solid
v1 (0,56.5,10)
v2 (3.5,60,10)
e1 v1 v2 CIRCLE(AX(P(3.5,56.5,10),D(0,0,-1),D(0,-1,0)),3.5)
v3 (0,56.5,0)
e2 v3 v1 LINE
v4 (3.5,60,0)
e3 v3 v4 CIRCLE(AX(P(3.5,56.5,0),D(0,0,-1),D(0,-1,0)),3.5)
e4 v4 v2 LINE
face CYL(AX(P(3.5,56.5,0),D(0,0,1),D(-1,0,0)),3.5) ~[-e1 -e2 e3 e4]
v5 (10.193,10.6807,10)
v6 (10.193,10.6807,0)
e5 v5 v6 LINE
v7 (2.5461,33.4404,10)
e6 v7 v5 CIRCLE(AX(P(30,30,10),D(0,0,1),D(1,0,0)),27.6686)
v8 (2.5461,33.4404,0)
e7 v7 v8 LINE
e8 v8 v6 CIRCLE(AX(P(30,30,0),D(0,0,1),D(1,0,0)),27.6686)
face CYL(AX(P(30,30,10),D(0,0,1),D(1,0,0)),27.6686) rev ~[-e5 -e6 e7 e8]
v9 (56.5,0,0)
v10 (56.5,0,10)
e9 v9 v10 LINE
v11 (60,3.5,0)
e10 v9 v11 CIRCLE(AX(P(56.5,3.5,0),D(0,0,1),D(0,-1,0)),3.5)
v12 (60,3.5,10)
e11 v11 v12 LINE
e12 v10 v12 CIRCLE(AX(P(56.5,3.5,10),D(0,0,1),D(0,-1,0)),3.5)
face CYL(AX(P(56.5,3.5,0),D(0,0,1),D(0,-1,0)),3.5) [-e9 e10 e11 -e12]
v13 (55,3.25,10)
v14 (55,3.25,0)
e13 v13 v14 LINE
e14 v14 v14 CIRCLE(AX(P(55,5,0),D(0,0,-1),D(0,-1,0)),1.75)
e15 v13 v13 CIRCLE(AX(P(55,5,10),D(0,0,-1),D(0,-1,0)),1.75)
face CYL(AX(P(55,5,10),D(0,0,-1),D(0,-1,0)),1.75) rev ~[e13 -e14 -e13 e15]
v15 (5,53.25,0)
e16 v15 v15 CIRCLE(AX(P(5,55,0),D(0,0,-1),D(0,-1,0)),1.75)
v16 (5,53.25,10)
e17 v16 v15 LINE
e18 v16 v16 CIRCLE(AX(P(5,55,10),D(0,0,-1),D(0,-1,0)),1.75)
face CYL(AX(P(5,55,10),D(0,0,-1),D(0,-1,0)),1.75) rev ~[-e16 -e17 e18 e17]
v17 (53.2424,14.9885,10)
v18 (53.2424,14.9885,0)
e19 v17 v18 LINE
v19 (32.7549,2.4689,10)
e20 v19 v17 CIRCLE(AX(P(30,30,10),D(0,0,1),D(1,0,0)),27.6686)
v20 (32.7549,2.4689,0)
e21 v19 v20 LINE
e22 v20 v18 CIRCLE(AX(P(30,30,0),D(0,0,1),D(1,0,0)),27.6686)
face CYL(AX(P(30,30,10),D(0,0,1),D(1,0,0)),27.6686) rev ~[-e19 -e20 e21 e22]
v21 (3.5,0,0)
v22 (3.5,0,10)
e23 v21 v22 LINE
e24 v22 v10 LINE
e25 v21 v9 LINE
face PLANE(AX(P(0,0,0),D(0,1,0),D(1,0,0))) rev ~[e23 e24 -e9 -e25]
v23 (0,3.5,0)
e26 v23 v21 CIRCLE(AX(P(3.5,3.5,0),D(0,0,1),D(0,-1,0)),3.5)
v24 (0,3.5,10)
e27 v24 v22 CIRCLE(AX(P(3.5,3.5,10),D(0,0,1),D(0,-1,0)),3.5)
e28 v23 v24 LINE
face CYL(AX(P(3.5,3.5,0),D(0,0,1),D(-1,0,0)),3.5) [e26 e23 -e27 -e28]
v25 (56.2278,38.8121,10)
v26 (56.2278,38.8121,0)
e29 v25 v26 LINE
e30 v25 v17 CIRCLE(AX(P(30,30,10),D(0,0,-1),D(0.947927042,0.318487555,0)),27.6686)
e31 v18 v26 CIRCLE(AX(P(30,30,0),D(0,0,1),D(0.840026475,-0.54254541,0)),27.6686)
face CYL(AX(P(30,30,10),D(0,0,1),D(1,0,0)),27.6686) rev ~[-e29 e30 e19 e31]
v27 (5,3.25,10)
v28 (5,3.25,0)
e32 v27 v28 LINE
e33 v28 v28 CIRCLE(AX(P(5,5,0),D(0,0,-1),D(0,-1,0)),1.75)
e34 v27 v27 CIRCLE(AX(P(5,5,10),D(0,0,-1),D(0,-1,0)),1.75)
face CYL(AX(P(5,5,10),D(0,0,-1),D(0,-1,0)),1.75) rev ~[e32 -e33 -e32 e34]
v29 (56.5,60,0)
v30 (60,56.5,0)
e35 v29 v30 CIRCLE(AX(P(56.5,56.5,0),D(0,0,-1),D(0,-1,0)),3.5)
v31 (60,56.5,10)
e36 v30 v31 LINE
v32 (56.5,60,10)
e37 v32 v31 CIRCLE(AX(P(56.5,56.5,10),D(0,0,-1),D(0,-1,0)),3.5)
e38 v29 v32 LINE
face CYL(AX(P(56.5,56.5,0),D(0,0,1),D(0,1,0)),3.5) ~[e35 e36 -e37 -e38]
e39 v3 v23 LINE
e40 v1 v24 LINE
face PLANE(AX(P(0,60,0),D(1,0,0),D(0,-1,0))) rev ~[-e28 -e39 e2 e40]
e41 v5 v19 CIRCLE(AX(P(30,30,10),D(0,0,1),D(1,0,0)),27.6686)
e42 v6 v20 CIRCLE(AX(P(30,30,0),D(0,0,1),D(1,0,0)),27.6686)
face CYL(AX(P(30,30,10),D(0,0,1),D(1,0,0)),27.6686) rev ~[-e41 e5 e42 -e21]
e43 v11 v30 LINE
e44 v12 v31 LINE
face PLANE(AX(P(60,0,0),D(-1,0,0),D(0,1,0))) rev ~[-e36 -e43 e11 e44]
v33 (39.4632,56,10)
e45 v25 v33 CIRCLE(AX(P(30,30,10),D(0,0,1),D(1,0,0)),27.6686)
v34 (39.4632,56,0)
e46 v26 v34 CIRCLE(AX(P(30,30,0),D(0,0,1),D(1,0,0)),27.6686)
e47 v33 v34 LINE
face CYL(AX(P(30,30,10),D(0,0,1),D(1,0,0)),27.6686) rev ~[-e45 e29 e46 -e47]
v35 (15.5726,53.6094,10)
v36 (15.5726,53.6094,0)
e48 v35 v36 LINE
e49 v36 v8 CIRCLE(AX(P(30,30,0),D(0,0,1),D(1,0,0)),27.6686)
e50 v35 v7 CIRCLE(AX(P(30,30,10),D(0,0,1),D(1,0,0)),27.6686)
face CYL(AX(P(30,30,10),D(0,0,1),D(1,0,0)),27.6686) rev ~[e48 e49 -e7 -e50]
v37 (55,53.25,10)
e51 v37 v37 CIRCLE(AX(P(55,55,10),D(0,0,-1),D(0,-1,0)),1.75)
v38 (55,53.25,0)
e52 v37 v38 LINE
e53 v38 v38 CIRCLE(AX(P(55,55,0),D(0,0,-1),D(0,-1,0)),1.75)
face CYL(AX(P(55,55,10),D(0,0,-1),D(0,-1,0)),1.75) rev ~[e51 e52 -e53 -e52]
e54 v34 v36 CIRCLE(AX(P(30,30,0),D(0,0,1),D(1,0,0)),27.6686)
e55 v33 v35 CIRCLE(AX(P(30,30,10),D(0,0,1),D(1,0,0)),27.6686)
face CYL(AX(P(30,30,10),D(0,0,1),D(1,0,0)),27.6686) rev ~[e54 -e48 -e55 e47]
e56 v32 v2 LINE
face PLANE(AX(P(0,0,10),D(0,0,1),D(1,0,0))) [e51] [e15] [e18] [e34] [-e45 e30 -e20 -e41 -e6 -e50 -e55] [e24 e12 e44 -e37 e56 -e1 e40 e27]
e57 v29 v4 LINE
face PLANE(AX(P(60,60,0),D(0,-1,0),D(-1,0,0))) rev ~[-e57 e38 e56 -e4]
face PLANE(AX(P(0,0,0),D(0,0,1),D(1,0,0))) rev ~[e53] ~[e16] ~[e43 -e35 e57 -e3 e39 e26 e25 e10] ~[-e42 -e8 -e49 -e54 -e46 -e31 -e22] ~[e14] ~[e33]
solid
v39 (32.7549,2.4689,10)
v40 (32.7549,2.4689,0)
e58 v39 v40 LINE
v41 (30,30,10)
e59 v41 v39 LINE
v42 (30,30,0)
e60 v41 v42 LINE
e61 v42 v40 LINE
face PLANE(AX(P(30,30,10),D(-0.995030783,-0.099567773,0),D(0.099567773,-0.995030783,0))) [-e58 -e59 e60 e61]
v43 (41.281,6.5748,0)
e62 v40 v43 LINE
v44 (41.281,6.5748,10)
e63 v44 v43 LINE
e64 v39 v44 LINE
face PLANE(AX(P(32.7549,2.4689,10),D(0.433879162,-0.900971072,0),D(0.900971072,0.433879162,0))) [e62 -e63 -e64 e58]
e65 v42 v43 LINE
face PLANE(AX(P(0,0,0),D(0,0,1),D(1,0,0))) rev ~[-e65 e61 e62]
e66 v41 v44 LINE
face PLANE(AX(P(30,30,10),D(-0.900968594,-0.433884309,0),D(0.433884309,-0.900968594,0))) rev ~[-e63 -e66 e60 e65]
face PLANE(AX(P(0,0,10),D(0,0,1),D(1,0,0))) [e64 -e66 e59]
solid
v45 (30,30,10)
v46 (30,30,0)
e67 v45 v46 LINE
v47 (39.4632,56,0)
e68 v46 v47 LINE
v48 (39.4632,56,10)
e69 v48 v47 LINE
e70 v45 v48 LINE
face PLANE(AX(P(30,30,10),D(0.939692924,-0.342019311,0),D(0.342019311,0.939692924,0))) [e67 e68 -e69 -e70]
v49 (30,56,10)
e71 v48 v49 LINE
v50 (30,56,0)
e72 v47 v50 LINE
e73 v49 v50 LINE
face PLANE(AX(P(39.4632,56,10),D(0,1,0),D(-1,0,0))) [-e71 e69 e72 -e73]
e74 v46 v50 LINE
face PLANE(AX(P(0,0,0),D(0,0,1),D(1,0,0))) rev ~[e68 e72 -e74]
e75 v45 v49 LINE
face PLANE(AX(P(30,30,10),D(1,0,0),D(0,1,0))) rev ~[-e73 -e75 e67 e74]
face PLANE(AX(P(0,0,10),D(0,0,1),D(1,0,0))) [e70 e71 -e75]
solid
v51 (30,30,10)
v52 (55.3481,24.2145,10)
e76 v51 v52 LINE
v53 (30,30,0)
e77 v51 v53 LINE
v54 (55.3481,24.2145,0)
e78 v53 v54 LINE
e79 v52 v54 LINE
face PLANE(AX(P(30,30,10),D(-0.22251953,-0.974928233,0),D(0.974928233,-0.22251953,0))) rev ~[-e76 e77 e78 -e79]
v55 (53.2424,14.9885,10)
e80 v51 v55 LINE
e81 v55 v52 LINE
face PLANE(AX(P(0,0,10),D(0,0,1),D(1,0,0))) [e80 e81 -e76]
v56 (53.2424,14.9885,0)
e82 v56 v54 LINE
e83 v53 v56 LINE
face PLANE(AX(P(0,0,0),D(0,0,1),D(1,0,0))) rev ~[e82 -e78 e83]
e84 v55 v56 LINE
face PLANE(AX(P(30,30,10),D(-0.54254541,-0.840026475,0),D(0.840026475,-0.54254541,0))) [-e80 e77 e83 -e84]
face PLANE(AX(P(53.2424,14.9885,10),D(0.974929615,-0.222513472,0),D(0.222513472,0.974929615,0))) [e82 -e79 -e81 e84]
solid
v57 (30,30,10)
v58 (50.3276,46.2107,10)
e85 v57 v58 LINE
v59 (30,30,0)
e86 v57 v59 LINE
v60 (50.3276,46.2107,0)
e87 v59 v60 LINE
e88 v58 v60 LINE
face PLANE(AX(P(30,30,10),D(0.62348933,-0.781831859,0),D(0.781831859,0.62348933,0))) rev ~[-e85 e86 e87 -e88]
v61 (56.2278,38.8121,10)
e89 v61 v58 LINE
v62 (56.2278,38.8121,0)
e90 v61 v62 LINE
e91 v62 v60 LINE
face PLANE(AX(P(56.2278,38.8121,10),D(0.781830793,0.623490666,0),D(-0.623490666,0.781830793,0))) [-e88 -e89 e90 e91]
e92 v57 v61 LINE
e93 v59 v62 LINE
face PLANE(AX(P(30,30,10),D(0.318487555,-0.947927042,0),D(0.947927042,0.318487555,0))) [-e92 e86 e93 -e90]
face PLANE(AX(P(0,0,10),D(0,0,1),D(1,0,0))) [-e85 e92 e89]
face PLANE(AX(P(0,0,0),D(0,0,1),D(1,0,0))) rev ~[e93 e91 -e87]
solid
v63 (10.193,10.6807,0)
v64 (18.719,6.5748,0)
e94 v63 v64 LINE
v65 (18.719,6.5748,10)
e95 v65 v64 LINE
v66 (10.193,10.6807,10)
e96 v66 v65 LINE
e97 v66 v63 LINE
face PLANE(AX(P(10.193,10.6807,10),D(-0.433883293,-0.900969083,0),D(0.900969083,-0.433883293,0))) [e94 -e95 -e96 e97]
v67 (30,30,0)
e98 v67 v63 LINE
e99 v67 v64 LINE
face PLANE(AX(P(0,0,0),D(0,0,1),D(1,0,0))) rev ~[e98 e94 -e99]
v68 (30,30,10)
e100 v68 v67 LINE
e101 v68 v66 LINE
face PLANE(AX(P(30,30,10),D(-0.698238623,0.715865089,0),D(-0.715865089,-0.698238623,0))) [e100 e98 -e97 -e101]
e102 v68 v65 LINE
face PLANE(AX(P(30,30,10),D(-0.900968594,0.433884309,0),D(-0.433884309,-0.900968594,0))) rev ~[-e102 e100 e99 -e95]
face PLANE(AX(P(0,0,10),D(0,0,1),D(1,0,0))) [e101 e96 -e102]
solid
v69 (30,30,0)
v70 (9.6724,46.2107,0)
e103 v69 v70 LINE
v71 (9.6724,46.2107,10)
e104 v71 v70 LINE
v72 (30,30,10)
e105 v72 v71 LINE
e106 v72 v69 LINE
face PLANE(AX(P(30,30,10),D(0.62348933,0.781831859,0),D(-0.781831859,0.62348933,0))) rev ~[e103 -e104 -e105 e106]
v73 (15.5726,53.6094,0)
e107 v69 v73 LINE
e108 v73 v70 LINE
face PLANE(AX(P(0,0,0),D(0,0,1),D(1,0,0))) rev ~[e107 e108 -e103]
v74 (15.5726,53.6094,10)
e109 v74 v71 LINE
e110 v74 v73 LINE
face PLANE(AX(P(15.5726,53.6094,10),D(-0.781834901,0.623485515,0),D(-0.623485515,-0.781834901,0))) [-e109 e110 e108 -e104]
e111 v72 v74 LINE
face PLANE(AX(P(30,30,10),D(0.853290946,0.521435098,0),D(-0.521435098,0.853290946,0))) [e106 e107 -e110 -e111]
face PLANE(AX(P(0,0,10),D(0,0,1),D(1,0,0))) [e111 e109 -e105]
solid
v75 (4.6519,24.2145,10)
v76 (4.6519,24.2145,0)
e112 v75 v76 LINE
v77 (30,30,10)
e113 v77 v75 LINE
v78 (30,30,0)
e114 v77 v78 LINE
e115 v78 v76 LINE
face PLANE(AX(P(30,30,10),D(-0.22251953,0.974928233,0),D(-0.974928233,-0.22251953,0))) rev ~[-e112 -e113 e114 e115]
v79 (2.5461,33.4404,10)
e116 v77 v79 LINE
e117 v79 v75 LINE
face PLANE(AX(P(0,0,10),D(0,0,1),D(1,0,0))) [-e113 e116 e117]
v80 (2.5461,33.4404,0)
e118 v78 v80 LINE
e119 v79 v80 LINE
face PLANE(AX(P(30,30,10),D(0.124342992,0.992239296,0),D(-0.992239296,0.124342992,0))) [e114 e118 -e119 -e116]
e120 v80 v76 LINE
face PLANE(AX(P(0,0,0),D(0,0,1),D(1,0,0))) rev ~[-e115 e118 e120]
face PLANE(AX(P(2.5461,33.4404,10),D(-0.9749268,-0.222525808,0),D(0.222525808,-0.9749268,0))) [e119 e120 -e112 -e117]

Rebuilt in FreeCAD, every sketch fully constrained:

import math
import FreeCAD as App
import Part
import Sketcher
Q = App.Units.Quantity


def edges_at(feature, points):
    """Names of the edges that pass closest to the given points."""
    edges = feature.Shape.Edges
    near = lambda p: min(range(len(edges)), key=lambda i: edges[i].distToShape(Part.Vertex(*p))[0])
    return sorted({f"Edge{near(p) + 1}" for p in points})


def add_polygon(sketch, points):
    """Adds a closed chain of lines whose ends are joined by coincident constraints."""
    first, n = sketch.GeometryCount, len(points)
    for a, b in zip(points, points[1:] + points[:1]):
        sketch.addGeometry(Part.LineSegment(App.Vector(*a, 0), App.Vector(*b, 0)), False)
    for i in range(n):
        sketch.addConstraint(Sketcher.Constraint("Coincident", first + i, 2, first + (i + 1) % n, 1))

doc = App.newDocument("Part")
params = doc.addObject("Spreadsheet::Sheet", "Params")
for row, (alias, value) in enumerate([
    ("sketch1_width", "60 mm"),
    ("pad1_length", "10 mm"),
    ("sketch2_diameter", "3.5 mm"),
    ("hole_diameter", "3.5 mm"),
    ("sketch3_diameter", "3.5 mm"),
    ("hole2_diameter", "3.5 mm"),
    ("sketch4_diameter", "3.5 mm"),
    ("hole3_diameter", "3.5 mm"),
    ("sketch5_diameter", "3.5 mm"),
    ("hole4_diameter", "3.5 mm"),
    ("fillet_radius", "3.5 mm"),
    ("sketch6_height", "26 mm"),
    ("sketch6_length", "26 mm"),
    ("pocket1_length", "10 mm"),
], start=1):
    params.set(f"A{row}", alias)
    params.set(f"B{row}", "=" + value)
    params.setAlias(f"B{row}", alias)

body = doc.addObject("PartDesign::Body", "Body")
body.AllowCompound = True

# Sketch on XY plane
sketch1 = body.newObject("Sketcher::SketchObject", "Sketch")
sketch1.AttachmentSupport = (doc.getObject("XY_Plane"), [""])
sketch1.MapMode = "FlatFace"
add_polygon(sketch1, [(0, 60), (0, 0), (60, 0), (60, 60)])  # lines 0-3
sketch1.addConstraint([
    Sketcher.Constraint("Vertical", 0),
    Sketcher.Constraint("Horizontal", 1),
    Sketcher.Constraint("Vertical", 2),
    Sketcher.Constraint("Horizontal", 3),
    Sketcher.Constraint("Coincident", 0, 2, -1, 1),
    Sketcher.Constraint("Equal", 3, 0),
    Sketcher.Constraint("DistanceX", 1, 1, 1, 2, 60.0),
])
sketch1.setExpression("Constraints[10]", "Params.sketch1_width")
pad1 = body.newObject("PartDesign::Pad", "Pad")
pad1.Profile = sketch1
pad1.setExpression("Length", "Params.pad1_length")

# Sketch on XY plane
sketch2 = body.newObject("Sketcher::SketchObject", "Sketch001")
sketch2.AttachmentSupport = (doc.getObject("XY_Plane"), [""])
sketch2.MapMode = "FlatFace"
sketch2.AttachmentOffset = App.Placement(App.Vector(0, 0, 10), App.Rotation())
sketch2.addGeometry(Part.Circle(App.Vector(5, 55, 0), App.Vector(0, 0, 1), 1.8), False)
sketch2.addConstraint([
    Sketcher.Constraint("Diameter", 0, 3.5),
    Sketcher.Constraint("DistanceX", -1, 1, 0, 3, 5.0),
    Sketcher.Constraint("DistanceY", -1, 1, 0, 3, 55.0),
])
sketch2.setExpression("Constraints[0]", "Params.sketch2_diameter")
doc.recompute()
hole = body.newObject("PartDesign::Hole", "Hole")
hole.Profile = sketch2
hole.ThreadType = "None"
hole.setExpression("Diameter", "Params.hole_diameter")
hole.DepthType = "ThroughAll"

# Sketch on XY plane
sketch3 = body.newObject("Sketcher::SketchObject", "Sketch002")
sketch3.AttachmentSupport = (doc.getObject("XY_Plane"), [""])
sketch3.MapMode = "FlatFace"
sketch3.AttachmentOffset = App.Placement(App.Vector(0, 0, 10), App.Rotation())
sketch3.addGeometry(Part.Circle(App.Vector(5, 5, 0), App.Vector(0, 0, 1), 1.8), False)
sketch3.addConstraint([
    Sketcher.Constraint("Diameter", 0, 3.5),
    Sketcher.Constraint("DistanceX", -1, 1, 0, 3, 5.0),
    Sketcher.Constraint("DistanceY", -1, 1, 0, 3, 5.0),
])
sketch3.setExpression("Constraints[0]", "Params.sketch3_diameter")
doc.recompute()
hole2 = body.newObject("PartDesign::Hole", "Hole001")
hole2.Profile = sketch3
hole2.ThreadType = "None"
hole2.setExpression("Diameter", "Params.hole2_diameter")
hole2.DepthType = "ThroughAll"

# Sketch on XY plane
sketch4 = body.newObject("Sketcher::SketchObject", "Sketch003")
sketch4.AttachmentSupport = (doc.getObject("XY_Plane"), [""])
sketch4.MapMode = "FlatFace"
sketch4.AttachmentOffset = App.Placement(App.Vector(0, 0, 10), App.Rotation())
sketch4.addGeometry(Part.Circle(App.Vector(55, 5, 0), App.Vector(0, 0, 1), 1.8), False)
sketch4.addConstraint([
    Sketcher.Constraint("Diameter", 0, 3.5),
    Sketcher.Constraint("DistanceX", -1, 1, 0, 3, 55.0),
    Sketcher.Constraint("DistanceY", -1, 1, 0, 3, 5.0),
])
sketch4.setExpression("Constraints[0]", "Params.sketch4_diameter")
doc.recompute()
hole3 = body.newObject("PartDesign::Hole", "Hole002")
hole3.Profile = sketch4
hole3.ThreadType = "None"
hole3.setExpression("Diameter", "Params.hole3_diameter")
hole3.DepthType = "ThroughAll"

# Sketch on XY plane
sketch5 = body.newObject("Sketcher::SketchObject", "Sketch004")
sketch5.AttachmentSupport = (doc.getObject("XY_Plane"), [""])
sketch5.MapMode = "FlatFace"
sketch5.AttachmentOffset = App.Placement(App.Vector(0, 0, 10), App.Rotation())
sketch5.addGeometry(Part.Circle(App.Vector(55, 55, 0), App.Vector(0, 0, 1), 1.8), False)
sketch5.addConstraint([
    Sketcher.Constraint("Diameter", 0, 3.5),
    Sketcher.Constraint("DistanceX", -1, 1, 0, 3, 55.0),
    Sketcher.Constraint("DistanceY", -1, 1, 0, 3, 55.0),
])
sketch5.setExpression("Constraints[0]", "Params.sketch5_diameter")
doc.recompute()
hole4 = body.newObject("PartDesign::Hole", "Hole003")
hole4.Profile = sketch5
hole4.ThreadType = "None"
hole4.setExpression("Diameter", "Params.hole4_diameter")
hole4.DepthType = "ThroughAll"
doc.recompute()

fillet = body.newObject("PartDesign::Fillet", "Fillet")
fillet.Base = (hole4, edges_at(hole4, [
    (60, 0, 5),
    (0, 0, 5),
    (0, 60, 5),
    (60, 60, 5),
]))
fillet.setExpression("Radius", "Params.fillet_radius")

# Sketch on XY plane
sketch6 = body.newObject("Sketcher::SketchObject", "Sketch005")
sketch6.AttachmentSupport = (doc.getObject("XY_Plane"), [""])
sketch6.MapMode = "FlatFace"
sketch6.AttachmentOffset = App.Placement(App.Vector(0, 0, 10), App.Rotation())
sketch6.addGeometry([
    Part.LineSegment(App.Vector(16, 54, 0), App.Vector(30, 30, 0)),  # 0
    Part.LineSegment(App.Vector(30, 30, 0), App.Vector(30, 56, 0)),  # 1
    Part.LineSegment(App.Vector(30, 56, 0), App.Vector(39, 56, 0)),  # 2
    Part.ArcOfCircle(Part.Circle(App.Vector(30, 30, 0), App.Vector(0, 0, 1), 28), math.radians(70), math.radians(121)),  # 3
    Part.LineSegment(App.Vector(3, 33, 0), App.Vector(30, 30, 0)),  # 4
    Part.LineSegment(App.Vector(30, 30, 0), App.Vector(10, 46, 0)),  # 5
    Part.LineSegment(App.Vector(10, 46, 0), App.Vector(16, 54, 0)),  # 6
    Part.ArcOfCircle(Part.Circle(App.Vector(30, 30, 0), App.Vector(0, 0, 1), 28), math.radians(121), math.radians(173)),  # 7
    Part.LineSegment(App.Vector(10, 11, 0), App.Vector(30, 30, 0)),  # 8
    Part.LineSegment(App.Vector(30, 30, 0), App.Vector(5, 24, 0)),  # 9
    Part.LineSegment(App.Vector(5, 24, 0), App.Vector(3, 33, 0)),  # 10
    Part.ArcOfCircle(Part.Circle(App.Vector(30, 30, 0), App.Vector(0, 0, 1), 28), math.radians(173), math.radians(224)),  # 11
    Part.LineSegment(App.Vector(33, 2, 0), App.Vector(30, 30, 0)),  # 12
    Part.LineSegment(App.Vector(30, 30, 0), App.Vector(19, 7, 0)),  # 13
    Part.LineSegment(App.Vector(19, 7, 0), App.Vector(10, 11, 0)),  # 14
    Part.ArcOfCircle(Part.Circle(App.Vector(30, 30, 0), App.Vector(0, 0, 1), 28), math.radians(-136), math.radians(-84)),  # 15
    Part.LineSegment(App.Vector(53, 15, 0), App.Vector(30, 30, 0)),  # 16
    Part.LineSegment(App.Vector(30, 30, 0), App.Vector(41, 7, 0)),  # 17
    Part.LineSegment(App.Vector(41, 7, 0), App.Vector(33, 2, 0)),  # 18
    Part.ArcOfCircle(Part.Circle(App.Vector(30, 30, 0), App.Vector(0, 0, 1), 28), math.radians(-84), math.radians(-33)),  # 19
    Part.LineSegment(App.Vector(56, 39, 0), App.Vector(30, 30, 0)),  # 20
    Part.LineSegment(App.Vector(30, 30, 0), App.Vector(55, 24, 0)),  # 21
    Part.LineSegment(App.Vector(55, 24, 0), App.Vector(53, 15, 0)),  # 22
    Part.ArcOfCircle(Part.Circle(App.Vector(30, 30, 0), App.Vector(0, 0, 1), 28), math.radians(-33), math.radians(19)),  # 23
    Part.LineSegment(App.Vector(39, 56, 0), App.Vector(30, 30, 0)),  # 24
    Part.LineSegment(App.Vector(30, 30, 0), App.Vector(50, 46, 0)),  # 25
    Part.LineSegment(App.Vector(50, 46, 0), App.Vector(56, 39, 0)),  # 26
    Part.ArcOfCircle(Part.Circle(App.Vector(30, 30, 0), App.Vector(0, 0, 1), 28), math.radians(19), math.radians(70)),  # 27
], False)
sketch6.addConstraint([
    Sketcher.Constraint("Coincident", 0, 2, 1, 1),
    Sketcher.Constraint("Coincident", 1, 2, 2, 1),
    Sketcher.Constraint("Coincident", 2, 2, 3, 1),
    Sketcher.Constraint("Coincident", 3, 2, 0, 1),
    Sketcher.Constraint("Coincident", 4, 2, 5, 1),
    Sketcher.Constraint("Coincident", 5, 2, 6, 1),
    Sketcher.Constraint("Coincident", 6, 2, 7, 1),
    Sketcher.Constraint("Coincident", 7, 2, 4, 1),
    Sketcher.Constraint("Coincident", 8, 2, 9, 1),
    Sketcher.Constraint("Coincident", 9, 2, 10, 1),
    Sketcher.Constraint("Coincident", 10, 2, 11, 1),
    Sketcher.Constraint("Coincident", 11, 2, 8, 1),
    Sketcher.Constraint("Coincident", 12, 2, 13, 1),
    Sketcher.Constraint("Coincident", 13, 2, 14, 1),
    Sketcher.Constraint("Coincident", 14, 2, 15, 1),
    Sketcher.Constraint("Coincident", 15, 2, 12, 1),
    Sketcher.Constraint("Coincident", 16, 2, 17, 1),
    Sketcher.Constraint("Coincident", 17, 2, 18, 1),
    Sketcher.Constraint("Coincident", 18, 2, 19, 1),
    Sketcher.Constraint("Coincident", 19, 2, 16, 1),
    Sketcher.Constraint("Coincident", 20, 2, 21, 1),
    Sketcher.Constraint("Coincident", 21, 2, 22, 1),
    Sketcher.Constraint("Coincident", 22, 2, 23, 1),
    Sketcher.Constraint("Coincident", 23, 2, 20, 1),
    Sketcher.Constraint("Coincident", 24, 2, 25, 1),
    Sketcher.Constraint("Coincident", 25, 2, 26, 1),
    Sketcher.Constraint("Coincident", 26, 2, 27, 1),
    Sketcher.Constraint("Coincident", 27, 2, 24, 1),
    Sketcher.Constraint("Vertical", 1),
    Sketcher.Constraint("Horizontal", 2),
    Sketcher.Constraint("Coincident", 7, 3, 3, 3),
    Sketcher.Constraint("Coincident", 11, 3, 3, 3),
    Sketcher.Constraint("Coincident", 15, 3, 3, 3),
    Sketcher.Constraint("Coincident", 19, 3, 3, 3),
    Sketcher.Constraint("Coincident", 23, 3, 3, 3),
    Sketcher.Constraint("Coincident", 27, 3, 3, 3),
    Sketcher.Constraint("Coincident", 0, 2, 3, 3),
    Sketcher.Constraint("Coincident", 4, 2, 3, 3),
    Sketcher.Constraint("Coincident", 6, 2, 3, 2),
    Sketcher.Constraint("Coincident", 8, 2, 3, 3),
    Sketcher.Constraint("Coincident", 10, 2, 7, 2),
    Sketcher.Constraint("Coincident", 12, 2, 3, 3),
    Sketcher.Constraint("Coincident", 14, 2, 11, 2),
    Sketcher.Constraint("Coincident", 16, 2, 3, 3),
    Sketcher.Constraint("Coincident", 18, 2, 15, 2),
    Sketcher.Constraint("Coincident", 20, 2, 3, 3),
    Sketcher.Constraint("Coincident", 22, 2, 19, 2),
    Sketcher.Constraint("Coincident", 24, 2, 3, 3),
    Sketcher.Constraint("Coincident", 26, 2, 23, 2),
    Sketcher.Constraint("Perpendicular", 5, 6),
    Sketcher.Constraint("Perpendicular", 9, 10),
    Sketcher.Constraint("Perpendicular", 13, 14),
    Sketcher.Constraint("Perpendicular", 17, 18),
    Sketcher.Constraint("Perpendicular", 21, 22),
    Sketcher.Constraint("Perpendicular", 25, 26),
    Sketcher.Constraint("Horizontal", 13, 2, 17, 2),
    Sketcher.Constraint("Horizontal", 9, 2, 21, 2),
    Sketcher.Constraint("Horizontal", 5, 2, 25, 2),
    Sketcher.Constraint("Horizontal", 1, 2, 27, 2),
    Sketcher.Constraint("Equal", 5, 9),
    Sketcher.Constraint("Equal", 9, 13),
    Sketcher.Constraint("Equal", 13, 17),
    Sketcher.Constraint("Equal", 17, 21),
    Sketcher.Constraint("Equal", 21, 25),
    Sketcher.Constraint("DistanceY", 1, 1, 1, 2, 26.0),
    Sketcher.Constraint("Distance", 5, 26.0),
    Sketcher.Constraint("Angle", 24, Q("-110 deg")),
    Sketcher.Constraint("DistanceX", -1, 1, 3, 3, 30.0),
    Sketcher.Constraint("DistanceY", -1, 1, 3, 3, 30.0),
    Sketcher.Constraint("Angle", 6, Q("51.429 deg")),
    Sketcher.Constraint("DistanceX", -1, 1, 9, 2, 4.652),
    Sketcher.Constraint("DistanceX", -1, 1, 11, 2, 10.193),
])
sketch6.setExpression("Constraints[64]", "Params.sketch6_height")
sketch6.setExpression("Constraints[65]", "Params.sketch6_length")
pocket1 = body.newObject("PartDesign::Pocket", "Pocket")
pocket1.Profile = sketch6
pocket1.setExpression("Length", "Params.pocket1_length")

doc.recompute()
